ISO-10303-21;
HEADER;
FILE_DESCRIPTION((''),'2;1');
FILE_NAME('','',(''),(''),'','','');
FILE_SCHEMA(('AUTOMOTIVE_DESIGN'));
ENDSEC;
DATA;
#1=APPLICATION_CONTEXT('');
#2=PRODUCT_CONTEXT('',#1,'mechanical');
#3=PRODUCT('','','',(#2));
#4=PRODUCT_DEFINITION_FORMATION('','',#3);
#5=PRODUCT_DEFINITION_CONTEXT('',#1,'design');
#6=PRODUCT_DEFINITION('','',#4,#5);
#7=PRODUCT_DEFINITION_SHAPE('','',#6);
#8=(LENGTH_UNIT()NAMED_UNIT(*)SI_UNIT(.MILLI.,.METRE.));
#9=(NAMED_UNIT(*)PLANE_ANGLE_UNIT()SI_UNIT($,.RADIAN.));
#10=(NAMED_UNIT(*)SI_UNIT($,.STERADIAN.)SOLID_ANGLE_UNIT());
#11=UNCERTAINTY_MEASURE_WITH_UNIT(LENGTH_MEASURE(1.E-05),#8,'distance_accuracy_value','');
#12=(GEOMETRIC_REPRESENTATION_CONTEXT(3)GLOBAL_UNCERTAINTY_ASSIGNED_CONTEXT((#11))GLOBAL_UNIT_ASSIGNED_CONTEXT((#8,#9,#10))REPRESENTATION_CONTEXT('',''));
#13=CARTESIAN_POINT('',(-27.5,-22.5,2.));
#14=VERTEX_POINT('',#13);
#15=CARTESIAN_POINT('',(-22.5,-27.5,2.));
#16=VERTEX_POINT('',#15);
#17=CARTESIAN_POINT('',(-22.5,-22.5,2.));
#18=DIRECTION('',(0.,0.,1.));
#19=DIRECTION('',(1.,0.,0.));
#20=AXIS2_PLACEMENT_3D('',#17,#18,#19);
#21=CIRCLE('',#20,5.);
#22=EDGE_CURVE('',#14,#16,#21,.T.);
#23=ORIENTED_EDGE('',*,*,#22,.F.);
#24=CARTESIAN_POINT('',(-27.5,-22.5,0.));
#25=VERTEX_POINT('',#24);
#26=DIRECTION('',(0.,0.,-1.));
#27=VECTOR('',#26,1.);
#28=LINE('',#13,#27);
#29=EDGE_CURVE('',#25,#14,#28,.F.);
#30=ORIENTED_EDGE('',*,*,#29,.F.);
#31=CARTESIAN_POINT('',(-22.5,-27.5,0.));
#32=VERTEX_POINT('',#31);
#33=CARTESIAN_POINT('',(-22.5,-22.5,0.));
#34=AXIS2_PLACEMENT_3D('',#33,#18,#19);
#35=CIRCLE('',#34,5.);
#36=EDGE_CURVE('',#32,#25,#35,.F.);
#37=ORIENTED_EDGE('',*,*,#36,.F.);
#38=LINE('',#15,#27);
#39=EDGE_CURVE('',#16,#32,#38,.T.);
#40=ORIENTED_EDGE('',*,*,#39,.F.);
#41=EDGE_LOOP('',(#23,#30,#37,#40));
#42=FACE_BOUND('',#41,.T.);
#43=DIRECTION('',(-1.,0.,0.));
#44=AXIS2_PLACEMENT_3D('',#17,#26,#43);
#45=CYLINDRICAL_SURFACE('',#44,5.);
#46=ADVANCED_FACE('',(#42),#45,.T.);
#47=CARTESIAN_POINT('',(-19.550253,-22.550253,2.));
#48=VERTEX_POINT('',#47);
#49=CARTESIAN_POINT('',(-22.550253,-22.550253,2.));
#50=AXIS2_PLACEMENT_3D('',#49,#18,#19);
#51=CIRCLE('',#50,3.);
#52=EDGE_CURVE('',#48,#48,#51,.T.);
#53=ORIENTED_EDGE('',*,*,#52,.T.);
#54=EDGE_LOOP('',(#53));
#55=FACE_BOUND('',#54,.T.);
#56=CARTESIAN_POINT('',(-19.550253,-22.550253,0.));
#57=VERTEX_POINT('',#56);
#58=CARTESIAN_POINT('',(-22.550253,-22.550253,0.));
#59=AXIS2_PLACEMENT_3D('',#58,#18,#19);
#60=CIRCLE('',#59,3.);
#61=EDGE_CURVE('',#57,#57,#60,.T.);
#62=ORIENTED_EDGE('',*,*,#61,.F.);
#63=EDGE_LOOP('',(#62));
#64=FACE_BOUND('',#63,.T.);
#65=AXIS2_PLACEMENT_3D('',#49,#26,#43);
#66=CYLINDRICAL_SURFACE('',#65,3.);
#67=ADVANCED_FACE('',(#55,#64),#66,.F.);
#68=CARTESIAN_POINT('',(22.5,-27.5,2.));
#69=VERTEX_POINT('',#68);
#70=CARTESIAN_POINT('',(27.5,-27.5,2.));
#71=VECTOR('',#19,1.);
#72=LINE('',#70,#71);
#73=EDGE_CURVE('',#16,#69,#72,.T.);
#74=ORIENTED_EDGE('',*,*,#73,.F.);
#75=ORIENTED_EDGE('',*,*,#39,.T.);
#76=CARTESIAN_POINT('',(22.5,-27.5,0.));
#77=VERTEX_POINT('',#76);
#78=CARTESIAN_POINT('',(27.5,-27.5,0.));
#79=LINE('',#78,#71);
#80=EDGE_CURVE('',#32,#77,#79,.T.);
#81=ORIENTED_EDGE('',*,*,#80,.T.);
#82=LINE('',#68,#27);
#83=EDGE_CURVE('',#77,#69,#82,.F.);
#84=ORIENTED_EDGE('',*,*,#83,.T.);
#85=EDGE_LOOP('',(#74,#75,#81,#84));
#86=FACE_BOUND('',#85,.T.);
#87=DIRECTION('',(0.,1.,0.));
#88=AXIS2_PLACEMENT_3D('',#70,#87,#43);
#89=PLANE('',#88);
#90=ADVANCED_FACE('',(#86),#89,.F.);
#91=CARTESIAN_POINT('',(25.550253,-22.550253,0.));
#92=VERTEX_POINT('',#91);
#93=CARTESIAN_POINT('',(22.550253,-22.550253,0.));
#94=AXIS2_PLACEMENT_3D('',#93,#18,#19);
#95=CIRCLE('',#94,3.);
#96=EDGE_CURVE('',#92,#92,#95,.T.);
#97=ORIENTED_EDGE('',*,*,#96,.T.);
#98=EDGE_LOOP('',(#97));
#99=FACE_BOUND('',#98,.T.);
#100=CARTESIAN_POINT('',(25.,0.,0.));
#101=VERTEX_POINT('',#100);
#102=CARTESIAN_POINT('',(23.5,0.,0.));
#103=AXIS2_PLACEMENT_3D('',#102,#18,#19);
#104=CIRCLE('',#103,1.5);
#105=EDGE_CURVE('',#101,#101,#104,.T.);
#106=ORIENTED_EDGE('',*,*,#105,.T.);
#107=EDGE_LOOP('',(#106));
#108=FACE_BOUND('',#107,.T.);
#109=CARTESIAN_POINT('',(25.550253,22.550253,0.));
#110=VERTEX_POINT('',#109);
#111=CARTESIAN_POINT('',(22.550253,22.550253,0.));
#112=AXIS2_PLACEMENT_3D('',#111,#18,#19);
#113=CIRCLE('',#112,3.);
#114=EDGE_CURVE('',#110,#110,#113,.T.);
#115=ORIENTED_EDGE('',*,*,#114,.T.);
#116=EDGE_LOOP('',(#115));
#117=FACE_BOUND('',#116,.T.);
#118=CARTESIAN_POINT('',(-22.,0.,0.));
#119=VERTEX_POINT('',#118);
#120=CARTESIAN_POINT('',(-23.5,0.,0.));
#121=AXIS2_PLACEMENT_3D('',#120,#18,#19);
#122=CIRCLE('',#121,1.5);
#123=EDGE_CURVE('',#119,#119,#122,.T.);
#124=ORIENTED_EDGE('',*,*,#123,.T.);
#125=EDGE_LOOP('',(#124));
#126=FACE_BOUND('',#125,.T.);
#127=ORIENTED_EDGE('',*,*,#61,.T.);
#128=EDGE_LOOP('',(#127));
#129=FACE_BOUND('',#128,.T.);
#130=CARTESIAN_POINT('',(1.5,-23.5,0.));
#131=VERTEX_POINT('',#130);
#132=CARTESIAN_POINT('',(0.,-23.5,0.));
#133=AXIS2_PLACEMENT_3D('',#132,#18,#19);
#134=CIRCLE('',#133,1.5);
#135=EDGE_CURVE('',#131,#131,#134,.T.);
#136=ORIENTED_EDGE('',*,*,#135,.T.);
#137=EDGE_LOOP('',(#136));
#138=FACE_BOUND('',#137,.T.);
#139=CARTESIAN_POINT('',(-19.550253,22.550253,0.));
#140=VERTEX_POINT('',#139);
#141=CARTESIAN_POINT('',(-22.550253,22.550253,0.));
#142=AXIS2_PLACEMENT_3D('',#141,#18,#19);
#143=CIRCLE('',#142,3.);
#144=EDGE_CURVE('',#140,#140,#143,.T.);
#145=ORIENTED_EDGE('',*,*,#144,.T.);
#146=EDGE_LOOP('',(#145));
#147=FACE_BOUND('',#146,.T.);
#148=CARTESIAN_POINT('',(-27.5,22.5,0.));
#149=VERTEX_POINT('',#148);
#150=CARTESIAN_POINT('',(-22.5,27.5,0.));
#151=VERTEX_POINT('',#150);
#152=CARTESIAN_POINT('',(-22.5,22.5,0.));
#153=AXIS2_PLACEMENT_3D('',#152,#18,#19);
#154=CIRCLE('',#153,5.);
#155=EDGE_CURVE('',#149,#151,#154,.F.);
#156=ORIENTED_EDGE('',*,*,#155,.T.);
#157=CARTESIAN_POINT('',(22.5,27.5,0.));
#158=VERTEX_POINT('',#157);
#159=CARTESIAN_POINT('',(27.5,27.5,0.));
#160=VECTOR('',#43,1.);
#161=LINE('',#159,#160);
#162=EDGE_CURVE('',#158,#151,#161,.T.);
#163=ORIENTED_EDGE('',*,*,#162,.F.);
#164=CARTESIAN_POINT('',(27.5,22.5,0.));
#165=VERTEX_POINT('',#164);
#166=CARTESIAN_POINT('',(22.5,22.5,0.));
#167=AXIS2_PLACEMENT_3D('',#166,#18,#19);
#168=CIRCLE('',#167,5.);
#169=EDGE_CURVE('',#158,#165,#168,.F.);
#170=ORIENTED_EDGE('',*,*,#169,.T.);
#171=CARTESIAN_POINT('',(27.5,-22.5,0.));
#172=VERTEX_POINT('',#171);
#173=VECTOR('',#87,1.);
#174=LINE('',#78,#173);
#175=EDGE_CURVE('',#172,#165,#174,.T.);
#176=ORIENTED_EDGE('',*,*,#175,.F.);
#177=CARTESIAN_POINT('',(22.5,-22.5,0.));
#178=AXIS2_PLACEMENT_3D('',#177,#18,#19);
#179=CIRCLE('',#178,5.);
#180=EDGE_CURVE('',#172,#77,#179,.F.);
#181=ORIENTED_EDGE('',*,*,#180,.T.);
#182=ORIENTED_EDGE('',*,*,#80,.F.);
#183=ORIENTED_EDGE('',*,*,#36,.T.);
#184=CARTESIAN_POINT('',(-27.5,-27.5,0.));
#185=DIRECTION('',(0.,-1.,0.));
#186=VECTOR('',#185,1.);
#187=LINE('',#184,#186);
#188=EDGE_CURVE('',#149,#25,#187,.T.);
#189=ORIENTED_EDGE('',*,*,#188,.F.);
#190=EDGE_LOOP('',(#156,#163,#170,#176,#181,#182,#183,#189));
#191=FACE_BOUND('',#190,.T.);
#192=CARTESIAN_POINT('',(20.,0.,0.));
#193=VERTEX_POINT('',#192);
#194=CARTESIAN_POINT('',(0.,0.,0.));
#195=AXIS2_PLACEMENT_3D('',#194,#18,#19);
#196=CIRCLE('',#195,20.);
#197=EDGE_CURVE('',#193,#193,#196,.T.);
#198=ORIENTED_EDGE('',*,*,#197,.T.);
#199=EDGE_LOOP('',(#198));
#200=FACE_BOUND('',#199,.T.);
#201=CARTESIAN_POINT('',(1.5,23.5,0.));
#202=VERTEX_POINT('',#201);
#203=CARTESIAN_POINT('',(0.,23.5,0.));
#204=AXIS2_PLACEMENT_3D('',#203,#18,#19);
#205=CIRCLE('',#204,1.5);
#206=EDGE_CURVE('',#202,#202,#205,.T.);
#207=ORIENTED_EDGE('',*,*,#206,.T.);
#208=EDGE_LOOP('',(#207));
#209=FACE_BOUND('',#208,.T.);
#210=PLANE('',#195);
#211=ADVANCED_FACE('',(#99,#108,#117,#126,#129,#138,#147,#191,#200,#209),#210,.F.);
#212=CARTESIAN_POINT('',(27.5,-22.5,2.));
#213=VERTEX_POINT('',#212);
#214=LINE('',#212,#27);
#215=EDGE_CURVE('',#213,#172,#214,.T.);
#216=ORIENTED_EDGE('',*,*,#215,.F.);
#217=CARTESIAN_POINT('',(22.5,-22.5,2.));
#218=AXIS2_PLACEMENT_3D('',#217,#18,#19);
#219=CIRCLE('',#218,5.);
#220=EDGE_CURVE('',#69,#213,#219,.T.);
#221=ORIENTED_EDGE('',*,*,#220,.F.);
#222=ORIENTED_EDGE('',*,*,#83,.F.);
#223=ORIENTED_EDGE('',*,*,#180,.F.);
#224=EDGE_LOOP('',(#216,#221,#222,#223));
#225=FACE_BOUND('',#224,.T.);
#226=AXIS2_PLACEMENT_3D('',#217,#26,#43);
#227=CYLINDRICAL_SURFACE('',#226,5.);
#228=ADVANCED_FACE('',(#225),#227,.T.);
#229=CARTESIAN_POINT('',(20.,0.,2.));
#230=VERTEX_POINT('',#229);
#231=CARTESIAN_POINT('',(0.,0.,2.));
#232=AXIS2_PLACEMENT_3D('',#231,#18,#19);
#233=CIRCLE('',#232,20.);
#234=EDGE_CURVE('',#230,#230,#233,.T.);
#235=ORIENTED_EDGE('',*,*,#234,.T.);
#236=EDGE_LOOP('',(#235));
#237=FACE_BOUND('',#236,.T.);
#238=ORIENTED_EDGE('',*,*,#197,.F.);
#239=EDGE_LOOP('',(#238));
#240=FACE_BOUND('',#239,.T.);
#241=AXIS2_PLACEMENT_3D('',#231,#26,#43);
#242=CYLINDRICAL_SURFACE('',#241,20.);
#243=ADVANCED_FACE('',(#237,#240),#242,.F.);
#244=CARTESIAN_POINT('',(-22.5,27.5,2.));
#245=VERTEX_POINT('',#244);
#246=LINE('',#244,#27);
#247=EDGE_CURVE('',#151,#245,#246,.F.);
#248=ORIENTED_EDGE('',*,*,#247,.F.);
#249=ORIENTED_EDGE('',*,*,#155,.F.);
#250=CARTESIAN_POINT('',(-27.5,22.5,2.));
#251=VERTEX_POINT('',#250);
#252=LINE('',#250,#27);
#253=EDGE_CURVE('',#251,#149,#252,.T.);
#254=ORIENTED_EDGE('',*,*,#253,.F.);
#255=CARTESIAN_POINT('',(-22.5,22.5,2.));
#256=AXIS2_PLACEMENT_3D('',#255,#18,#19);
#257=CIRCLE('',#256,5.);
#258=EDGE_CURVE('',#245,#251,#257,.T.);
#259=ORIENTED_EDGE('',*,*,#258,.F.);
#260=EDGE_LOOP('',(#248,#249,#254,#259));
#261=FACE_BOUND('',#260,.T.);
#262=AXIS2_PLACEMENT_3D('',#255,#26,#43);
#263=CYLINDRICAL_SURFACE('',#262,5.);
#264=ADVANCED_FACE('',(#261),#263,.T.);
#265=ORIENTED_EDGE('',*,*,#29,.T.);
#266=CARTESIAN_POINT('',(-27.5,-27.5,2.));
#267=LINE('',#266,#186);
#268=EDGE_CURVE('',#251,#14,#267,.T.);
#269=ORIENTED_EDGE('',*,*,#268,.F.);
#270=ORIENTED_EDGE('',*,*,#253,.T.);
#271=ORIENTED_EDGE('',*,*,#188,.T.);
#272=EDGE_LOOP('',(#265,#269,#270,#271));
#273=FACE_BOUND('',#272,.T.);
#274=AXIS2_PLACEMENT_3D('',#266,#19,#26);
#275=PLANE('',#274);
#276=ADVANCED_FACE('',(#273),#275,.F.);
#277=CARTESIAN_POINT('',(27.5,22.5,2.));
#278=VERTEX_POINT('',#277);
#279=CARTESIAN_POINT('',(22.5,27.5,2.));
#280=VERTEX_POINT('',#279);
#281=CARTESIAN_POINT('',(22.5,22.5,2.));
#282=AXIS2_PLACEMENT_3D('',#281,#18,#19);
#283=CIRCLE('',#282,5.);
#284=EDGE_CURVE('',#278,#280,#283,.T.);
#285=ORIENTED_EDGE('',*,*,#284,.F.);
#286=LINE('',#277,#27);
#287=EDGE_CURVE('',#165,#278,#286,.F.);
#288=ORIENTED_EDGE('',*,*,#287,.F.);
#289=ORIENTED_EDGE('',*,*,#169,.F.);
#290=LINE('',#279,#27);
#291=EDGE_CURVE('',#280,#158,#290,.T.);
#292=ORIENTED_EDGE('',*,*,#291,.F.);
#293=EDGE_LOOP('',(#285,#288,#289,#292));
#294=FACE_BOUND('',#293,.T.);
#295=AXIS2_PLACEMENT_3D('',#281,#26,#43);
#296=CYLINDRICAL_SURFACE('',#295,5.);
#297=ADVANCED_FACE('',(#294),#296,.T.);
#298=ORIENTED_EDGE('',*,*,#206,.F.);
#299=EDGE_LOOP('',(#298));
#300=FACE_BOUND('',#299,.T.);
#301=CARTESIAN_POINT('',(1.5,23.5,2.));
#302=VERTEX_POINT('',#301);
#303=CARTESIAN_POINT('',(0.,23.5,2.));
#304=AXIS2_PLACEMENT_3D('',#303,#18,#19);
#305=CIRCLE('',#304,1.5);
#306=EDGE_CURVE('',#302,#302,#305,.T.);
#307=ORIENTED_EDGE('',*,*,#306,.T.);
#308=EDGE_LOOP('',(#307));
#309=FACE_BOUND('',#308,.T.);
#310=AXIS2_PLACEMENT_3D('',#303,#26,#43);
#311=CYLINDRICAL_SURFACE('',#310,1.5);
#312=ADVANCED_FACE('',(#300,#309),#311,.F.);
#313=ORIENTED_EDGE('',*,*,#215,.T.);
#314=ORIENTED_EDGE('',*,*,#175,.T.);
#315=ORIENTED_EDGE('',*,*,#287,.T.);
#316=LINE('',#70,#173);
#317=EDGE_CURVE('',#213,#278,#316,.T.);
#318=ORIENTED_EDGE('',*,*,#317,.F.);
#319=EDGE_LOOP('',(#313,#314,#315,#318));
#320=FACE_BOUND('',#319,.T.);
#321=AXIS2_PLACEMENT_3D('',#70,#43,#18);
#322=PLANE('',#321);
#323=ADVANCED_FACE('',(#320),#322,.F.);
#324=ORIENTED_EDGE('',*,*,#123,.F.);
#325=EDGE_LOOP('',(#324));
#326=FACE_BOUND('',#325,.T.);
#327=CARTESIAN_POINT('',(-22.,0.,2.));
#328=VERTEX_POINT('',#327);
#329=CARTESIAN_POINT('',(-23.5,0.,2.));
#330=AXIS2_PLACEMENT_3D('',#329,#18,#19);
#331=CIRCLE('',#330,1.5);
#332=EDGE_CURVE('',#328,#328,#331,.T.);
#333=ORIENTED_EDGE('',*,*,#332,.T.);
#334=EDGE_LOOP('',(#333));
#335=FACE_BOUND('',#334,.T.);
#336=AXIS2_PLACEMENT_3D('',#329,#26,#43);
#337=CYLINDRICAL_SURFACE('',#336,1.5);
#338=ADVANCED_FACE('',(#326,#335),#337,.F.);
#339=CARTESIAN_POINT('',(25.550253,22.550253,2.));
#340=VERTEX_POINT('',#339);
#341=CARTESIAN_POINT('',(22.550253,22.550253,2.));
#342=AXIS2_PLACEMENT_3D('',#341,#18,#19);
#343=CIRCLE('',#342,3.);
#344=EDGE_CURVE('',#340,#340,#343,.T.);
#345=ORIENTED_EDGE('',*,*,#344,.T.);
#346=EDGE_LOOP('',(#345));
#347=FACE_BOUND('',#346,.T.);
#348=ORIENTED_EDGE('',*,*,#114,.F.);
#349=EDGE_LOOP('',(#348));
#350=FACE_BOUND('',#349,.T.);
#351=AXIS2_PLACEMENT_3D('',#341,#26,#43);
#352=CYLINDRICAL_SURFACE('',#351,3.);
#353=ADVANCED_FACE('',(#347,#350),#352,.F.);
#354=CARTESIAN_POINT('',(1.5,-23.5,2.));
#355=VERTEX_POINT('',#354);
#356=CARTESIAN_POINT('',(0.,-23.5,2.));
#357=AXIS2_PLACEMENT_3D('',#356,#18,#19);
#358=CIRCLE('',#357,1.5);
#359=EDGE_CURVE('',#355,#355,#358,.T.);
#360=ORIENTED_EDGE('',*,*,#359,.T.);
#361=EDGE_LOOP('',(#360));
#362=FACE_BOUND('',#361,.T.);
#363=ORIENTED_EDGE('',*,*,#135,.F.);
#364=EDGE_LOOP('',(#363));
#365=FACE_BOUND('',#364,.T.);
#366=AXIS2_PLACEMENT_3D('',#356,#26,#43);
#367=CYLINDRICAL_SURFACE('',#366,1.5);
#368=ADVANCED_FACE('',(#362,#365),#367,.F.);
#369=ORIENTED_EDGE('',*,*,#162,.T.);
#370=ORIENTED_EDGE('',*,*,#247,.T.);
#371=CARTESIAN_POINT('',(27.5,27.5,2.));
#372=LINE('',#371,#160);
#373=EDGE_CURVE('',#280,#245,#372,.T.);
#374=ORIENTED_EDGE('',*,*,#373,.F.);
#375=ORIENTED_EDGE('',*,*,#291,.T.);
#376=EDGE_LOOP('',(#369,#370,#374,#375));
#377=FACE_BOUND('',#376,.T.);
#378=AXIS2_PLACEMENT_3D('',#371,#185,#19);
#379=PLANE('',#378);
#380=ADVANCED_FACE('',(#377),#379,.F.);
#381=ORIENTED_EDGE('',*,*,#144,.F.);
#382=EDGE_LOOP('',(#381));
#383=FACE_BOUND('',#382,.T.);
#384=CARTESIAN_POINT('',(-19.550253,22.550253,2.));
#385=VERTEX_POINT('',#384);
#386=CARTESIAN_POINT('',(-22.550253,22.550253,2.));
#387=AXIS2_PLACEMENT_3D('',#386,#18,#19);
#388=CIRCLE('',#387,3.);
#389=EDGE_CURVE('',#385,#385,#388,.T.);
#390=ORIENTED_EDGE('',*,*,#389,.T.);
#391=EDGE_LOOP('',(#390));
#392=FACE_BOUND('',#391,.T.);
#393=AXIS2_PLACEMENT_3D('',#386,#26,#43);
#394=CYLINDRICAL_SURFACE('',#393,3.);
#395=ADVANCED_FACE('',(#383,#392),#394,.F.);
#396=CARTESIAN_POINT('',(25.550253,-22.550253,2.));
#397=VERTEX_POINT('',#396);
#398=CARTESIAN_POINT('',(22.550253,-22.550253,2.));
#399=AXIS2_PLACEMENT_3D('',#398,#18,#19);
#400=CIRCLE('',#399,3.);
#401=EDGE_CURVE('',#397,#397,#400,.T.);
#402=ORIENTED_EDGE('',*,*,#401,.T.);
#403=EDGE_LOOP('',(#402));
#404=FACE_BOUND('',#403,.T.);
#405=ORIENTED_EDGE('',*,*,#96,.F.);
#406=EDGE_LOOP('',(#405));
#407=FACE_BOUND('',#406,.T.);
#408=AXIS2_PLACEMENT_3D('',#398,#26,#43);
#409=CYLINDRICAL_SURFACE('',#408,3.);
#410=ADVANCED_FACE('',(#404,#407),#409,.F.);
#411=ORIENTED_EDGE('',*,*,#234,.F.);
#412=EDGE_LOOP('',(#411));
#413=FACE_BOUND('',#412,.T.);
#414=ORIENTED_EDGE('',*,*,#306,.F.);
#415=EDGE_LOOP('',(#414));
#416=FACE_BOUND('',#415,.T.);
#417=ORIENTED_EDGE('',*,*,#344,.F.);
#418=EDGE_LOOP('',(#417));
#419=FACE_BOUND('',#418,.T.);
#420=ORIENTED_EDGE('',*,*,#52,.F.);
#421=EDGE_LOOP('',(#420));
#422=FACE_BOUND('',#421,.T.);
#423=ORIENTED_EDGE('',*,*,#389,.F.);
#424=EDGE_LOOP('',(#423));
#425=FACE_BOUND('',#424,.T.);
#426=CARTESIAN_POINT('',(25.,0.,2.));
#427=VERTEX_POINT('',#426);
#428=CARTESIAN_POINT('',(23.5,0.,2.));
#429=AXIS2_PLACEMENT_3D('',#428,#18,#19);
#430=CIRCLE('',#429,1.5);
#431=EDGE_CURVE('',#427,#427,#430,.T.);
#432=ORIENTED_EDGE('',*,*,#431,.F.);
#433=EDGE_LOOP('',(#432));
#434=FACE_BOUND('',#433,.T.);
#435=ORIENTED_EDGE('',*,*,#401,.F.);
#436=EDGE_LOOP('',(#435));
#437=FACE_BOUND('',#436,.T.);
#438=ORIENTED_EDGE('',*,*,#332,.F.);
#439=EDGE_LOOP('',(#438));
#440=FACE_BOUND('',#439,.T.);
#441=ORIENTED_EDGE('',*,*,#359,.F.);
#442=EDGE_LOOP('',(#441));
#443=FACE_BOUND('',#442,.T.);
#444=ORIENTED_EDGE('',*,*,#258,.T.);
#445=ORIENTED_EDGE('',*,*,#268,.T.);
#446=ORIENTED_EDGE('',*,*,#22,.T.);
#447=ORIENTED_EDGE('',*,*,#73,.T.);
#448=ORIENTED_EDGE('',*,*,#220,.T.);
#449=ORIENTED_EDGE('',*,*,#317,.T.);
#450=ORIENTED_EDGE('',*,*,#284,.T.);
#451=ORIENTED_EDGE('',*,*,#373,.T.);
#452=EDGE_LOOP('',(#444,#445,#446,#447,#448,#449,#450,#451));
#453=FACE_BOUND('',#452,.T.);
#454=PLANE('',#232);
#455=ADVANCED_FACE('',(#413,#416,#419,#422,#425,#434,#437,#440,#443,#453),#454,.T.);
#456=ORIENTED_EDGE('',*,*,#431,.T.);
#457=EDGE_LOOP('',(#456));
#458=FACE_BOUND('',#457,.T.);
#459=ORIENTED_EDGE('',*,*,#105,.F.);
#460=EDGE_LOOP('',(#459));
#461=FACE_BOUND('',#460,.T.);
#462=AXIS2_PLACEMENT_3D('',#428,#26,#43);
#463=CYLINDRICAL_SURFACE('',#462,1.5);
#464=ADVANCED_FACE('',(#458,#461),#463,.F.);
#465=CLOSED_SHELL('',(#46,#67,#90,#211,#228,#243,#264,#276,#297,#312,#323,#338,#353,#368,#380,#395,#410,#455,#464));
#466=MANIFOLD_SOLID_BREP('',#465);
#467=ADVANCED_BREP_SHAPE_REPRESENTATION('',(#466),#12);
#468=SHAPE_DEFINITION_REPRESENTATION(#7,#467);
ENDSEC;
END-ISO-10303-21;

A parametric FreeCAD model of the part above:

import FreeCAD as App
import Part
import Sketcher
from FreeCAD import Vector


def edges_at(feature, points):
    """Names of the edges that pass closest to the given points."""
    edges = feature.Shape.Edges
    near = lambda p: min(range(len(edges)), key=lambda i: edges[i].distToShape(Part.Vertex(*p))[0])
    return sorted({f"Edge{near(p) + 1}" for p in points})


def add_polygon(sketch, points):
    """Adds a closed chain of lines whose ends are joined by coincident constraints."""
    first, n = sketch.GeometryCount, len(points)
    for a, b in zip(points, points[1:] + points[:1]):
        sketch.addGeometry(Part.LineSegment(App.Vector(*a, 0), App.Vector(*b, 0)), False)
    for i in range(n):
        sketch.addConstraint(Sketcher.Constraint("Coincident", first + i, 2, first + (i + 1) % n, 1))

doc = App.newDocument("Part")
body = doc.addObject("PartDesign::Body", "Body")

# Sketch on XY plane
sketch1 = body.newObject("Sketcher::SketchObject", "Sketch")
sketch1.AttachmentSupport = (doc.getObject("XY_Plane"), [""])
sketch1.MapMode = "FlatFace"
add_polygon(sketch1, [(-27.5, 27.5), (-27.5, -27.5), (27.5, -27.5), (27.5, 27.5)])  # lines 0-3
sketch1.addGeometry(Part.Circle(Vector(-22.6, -22.6, 0), Vector(0, 0, 1), 3), False)  # 4
sketch1.addGeometry(Part.Circle(Vector(0, -23.5, 0), Vector(0, 0, 1), 1.5), False)  # 5
sketch1.addGeometry(Part.Circle(Vector(-23.5, 0, 0), Vector(0, 0, 1), 1.5), False)  # 6
sketch1.addGeometry(Part.Circle(Vector(0, 0, 0), Vector(0, 0, 1), 20), False)  # 7
sketch1.addGeometry(Part.Circle(Vector(22.6, -22.6, 0), Vector(0, 0, 1), 3), False)  # 8
sketch1.addGeometry(Part.Circle(Vector(23.5, 0, 0), Vector(0, 0, 1), 1.5), False)  # 9
sketch1.addGeometry(Part.Circle(Vector(-22.6, 22.6, 0), Vector(0, 0, 1), 3), False)  # 10
sketch1.addGeometry(Part.Circle(Vector(0, 23.5, 0), Vector(0, 0, 1), 1.5), False)  # 11
sketch1.addGeometry(Part.Circle(Vector(22.6, 22.6, 0), Vector(0, 0, 1), 3), False)  # 12
sketch1.addConstraint([
    Sketcher.Constraint("Vertical", 0),
    Sketcher.Constraint("Horizontal", 1),
    Sketcher.Constraint("Vertical", 2),
    Sketcher.Constraint("Horizontal", 3),
    Sketcher.Constraint("Coincident", 7, 3, -1, 1),
    Sketcher.Constraint("Equal", 5, 6),
    Sketcher.Constraint("Equal", 4, 8),
    Sketcher.Constraint("Equal", 6, 9),
    Sketcher.Constraint("Equal", 8, 10),
    Sketcher.Constraint("Equal", 9, 11),
    Sketcher.Constraint("Equal", 10, 12),
    Sketcher.Constraint("Symmetric", 6, 3, 9, 3, -1, 1),
    Sketcher.Constraint("Symmetric", 8, 3, 10, 3, -1, 1),
    Sketcher.Constraint("Symmetric", 5, 3, 11, 3, -1, 1),
    Sketcher.Constraint("Symmetric", 4, 3, 12, 3, -1, 1),
    Sketcher.Constraint("Symmetric", 0, 2, 2, 2, -1, 1),
    Sketcher.Constraint("Symmetric", 4, 3, 8, 3, -2),
    Sketcher.Constraint("PointOnObject", 5, 3, -2),
    Sketcher.Constraint("PointOnObject", 6, 3, -1),
    Sketcher.Constraint("Equal", 3, 0),
    Sketcher.Constraint("Diameter", 4, 6.0),
    Sketcher.Constraint("Diameter", 5, 3.0),
    Sketcher.Constraint("Diameter", 7, 40.0),
    Sketcher.Constraint("DistanceX", 1, 1, 1, 2, 55.0),
    Sketcher.Constraint("DistanceX", 6, 3, 9, 3, 47.0),
    Sketcher.Constraint("DistanceY", 5, 3, 11, 3, 47.0),
    Sketcher.Constraint("DistanceX", 4, 3, -1, 1, 22.550253),
    Sketcher.Constraint("DistanceY", 4, 3, -1, 1, 22.550253),
])
pad1 = body.newObject("PartDesign::Pad", "Pad")
pad1.Profile = sketch1
pad1.Length = 2
doc.recompute()

fillet = body.newObject("PartDesign::Fillet", "Fillet")
fillet.Base = (pad1, edges_at(pad1, [
    (-27.5, 27.5, 1),
    (27.5, 27.5, 1),
    (27.5, -27.5, 1),
    (-27.5, -27.5, 1),
]))
fillet.Radius = 5

doc.recompute()
